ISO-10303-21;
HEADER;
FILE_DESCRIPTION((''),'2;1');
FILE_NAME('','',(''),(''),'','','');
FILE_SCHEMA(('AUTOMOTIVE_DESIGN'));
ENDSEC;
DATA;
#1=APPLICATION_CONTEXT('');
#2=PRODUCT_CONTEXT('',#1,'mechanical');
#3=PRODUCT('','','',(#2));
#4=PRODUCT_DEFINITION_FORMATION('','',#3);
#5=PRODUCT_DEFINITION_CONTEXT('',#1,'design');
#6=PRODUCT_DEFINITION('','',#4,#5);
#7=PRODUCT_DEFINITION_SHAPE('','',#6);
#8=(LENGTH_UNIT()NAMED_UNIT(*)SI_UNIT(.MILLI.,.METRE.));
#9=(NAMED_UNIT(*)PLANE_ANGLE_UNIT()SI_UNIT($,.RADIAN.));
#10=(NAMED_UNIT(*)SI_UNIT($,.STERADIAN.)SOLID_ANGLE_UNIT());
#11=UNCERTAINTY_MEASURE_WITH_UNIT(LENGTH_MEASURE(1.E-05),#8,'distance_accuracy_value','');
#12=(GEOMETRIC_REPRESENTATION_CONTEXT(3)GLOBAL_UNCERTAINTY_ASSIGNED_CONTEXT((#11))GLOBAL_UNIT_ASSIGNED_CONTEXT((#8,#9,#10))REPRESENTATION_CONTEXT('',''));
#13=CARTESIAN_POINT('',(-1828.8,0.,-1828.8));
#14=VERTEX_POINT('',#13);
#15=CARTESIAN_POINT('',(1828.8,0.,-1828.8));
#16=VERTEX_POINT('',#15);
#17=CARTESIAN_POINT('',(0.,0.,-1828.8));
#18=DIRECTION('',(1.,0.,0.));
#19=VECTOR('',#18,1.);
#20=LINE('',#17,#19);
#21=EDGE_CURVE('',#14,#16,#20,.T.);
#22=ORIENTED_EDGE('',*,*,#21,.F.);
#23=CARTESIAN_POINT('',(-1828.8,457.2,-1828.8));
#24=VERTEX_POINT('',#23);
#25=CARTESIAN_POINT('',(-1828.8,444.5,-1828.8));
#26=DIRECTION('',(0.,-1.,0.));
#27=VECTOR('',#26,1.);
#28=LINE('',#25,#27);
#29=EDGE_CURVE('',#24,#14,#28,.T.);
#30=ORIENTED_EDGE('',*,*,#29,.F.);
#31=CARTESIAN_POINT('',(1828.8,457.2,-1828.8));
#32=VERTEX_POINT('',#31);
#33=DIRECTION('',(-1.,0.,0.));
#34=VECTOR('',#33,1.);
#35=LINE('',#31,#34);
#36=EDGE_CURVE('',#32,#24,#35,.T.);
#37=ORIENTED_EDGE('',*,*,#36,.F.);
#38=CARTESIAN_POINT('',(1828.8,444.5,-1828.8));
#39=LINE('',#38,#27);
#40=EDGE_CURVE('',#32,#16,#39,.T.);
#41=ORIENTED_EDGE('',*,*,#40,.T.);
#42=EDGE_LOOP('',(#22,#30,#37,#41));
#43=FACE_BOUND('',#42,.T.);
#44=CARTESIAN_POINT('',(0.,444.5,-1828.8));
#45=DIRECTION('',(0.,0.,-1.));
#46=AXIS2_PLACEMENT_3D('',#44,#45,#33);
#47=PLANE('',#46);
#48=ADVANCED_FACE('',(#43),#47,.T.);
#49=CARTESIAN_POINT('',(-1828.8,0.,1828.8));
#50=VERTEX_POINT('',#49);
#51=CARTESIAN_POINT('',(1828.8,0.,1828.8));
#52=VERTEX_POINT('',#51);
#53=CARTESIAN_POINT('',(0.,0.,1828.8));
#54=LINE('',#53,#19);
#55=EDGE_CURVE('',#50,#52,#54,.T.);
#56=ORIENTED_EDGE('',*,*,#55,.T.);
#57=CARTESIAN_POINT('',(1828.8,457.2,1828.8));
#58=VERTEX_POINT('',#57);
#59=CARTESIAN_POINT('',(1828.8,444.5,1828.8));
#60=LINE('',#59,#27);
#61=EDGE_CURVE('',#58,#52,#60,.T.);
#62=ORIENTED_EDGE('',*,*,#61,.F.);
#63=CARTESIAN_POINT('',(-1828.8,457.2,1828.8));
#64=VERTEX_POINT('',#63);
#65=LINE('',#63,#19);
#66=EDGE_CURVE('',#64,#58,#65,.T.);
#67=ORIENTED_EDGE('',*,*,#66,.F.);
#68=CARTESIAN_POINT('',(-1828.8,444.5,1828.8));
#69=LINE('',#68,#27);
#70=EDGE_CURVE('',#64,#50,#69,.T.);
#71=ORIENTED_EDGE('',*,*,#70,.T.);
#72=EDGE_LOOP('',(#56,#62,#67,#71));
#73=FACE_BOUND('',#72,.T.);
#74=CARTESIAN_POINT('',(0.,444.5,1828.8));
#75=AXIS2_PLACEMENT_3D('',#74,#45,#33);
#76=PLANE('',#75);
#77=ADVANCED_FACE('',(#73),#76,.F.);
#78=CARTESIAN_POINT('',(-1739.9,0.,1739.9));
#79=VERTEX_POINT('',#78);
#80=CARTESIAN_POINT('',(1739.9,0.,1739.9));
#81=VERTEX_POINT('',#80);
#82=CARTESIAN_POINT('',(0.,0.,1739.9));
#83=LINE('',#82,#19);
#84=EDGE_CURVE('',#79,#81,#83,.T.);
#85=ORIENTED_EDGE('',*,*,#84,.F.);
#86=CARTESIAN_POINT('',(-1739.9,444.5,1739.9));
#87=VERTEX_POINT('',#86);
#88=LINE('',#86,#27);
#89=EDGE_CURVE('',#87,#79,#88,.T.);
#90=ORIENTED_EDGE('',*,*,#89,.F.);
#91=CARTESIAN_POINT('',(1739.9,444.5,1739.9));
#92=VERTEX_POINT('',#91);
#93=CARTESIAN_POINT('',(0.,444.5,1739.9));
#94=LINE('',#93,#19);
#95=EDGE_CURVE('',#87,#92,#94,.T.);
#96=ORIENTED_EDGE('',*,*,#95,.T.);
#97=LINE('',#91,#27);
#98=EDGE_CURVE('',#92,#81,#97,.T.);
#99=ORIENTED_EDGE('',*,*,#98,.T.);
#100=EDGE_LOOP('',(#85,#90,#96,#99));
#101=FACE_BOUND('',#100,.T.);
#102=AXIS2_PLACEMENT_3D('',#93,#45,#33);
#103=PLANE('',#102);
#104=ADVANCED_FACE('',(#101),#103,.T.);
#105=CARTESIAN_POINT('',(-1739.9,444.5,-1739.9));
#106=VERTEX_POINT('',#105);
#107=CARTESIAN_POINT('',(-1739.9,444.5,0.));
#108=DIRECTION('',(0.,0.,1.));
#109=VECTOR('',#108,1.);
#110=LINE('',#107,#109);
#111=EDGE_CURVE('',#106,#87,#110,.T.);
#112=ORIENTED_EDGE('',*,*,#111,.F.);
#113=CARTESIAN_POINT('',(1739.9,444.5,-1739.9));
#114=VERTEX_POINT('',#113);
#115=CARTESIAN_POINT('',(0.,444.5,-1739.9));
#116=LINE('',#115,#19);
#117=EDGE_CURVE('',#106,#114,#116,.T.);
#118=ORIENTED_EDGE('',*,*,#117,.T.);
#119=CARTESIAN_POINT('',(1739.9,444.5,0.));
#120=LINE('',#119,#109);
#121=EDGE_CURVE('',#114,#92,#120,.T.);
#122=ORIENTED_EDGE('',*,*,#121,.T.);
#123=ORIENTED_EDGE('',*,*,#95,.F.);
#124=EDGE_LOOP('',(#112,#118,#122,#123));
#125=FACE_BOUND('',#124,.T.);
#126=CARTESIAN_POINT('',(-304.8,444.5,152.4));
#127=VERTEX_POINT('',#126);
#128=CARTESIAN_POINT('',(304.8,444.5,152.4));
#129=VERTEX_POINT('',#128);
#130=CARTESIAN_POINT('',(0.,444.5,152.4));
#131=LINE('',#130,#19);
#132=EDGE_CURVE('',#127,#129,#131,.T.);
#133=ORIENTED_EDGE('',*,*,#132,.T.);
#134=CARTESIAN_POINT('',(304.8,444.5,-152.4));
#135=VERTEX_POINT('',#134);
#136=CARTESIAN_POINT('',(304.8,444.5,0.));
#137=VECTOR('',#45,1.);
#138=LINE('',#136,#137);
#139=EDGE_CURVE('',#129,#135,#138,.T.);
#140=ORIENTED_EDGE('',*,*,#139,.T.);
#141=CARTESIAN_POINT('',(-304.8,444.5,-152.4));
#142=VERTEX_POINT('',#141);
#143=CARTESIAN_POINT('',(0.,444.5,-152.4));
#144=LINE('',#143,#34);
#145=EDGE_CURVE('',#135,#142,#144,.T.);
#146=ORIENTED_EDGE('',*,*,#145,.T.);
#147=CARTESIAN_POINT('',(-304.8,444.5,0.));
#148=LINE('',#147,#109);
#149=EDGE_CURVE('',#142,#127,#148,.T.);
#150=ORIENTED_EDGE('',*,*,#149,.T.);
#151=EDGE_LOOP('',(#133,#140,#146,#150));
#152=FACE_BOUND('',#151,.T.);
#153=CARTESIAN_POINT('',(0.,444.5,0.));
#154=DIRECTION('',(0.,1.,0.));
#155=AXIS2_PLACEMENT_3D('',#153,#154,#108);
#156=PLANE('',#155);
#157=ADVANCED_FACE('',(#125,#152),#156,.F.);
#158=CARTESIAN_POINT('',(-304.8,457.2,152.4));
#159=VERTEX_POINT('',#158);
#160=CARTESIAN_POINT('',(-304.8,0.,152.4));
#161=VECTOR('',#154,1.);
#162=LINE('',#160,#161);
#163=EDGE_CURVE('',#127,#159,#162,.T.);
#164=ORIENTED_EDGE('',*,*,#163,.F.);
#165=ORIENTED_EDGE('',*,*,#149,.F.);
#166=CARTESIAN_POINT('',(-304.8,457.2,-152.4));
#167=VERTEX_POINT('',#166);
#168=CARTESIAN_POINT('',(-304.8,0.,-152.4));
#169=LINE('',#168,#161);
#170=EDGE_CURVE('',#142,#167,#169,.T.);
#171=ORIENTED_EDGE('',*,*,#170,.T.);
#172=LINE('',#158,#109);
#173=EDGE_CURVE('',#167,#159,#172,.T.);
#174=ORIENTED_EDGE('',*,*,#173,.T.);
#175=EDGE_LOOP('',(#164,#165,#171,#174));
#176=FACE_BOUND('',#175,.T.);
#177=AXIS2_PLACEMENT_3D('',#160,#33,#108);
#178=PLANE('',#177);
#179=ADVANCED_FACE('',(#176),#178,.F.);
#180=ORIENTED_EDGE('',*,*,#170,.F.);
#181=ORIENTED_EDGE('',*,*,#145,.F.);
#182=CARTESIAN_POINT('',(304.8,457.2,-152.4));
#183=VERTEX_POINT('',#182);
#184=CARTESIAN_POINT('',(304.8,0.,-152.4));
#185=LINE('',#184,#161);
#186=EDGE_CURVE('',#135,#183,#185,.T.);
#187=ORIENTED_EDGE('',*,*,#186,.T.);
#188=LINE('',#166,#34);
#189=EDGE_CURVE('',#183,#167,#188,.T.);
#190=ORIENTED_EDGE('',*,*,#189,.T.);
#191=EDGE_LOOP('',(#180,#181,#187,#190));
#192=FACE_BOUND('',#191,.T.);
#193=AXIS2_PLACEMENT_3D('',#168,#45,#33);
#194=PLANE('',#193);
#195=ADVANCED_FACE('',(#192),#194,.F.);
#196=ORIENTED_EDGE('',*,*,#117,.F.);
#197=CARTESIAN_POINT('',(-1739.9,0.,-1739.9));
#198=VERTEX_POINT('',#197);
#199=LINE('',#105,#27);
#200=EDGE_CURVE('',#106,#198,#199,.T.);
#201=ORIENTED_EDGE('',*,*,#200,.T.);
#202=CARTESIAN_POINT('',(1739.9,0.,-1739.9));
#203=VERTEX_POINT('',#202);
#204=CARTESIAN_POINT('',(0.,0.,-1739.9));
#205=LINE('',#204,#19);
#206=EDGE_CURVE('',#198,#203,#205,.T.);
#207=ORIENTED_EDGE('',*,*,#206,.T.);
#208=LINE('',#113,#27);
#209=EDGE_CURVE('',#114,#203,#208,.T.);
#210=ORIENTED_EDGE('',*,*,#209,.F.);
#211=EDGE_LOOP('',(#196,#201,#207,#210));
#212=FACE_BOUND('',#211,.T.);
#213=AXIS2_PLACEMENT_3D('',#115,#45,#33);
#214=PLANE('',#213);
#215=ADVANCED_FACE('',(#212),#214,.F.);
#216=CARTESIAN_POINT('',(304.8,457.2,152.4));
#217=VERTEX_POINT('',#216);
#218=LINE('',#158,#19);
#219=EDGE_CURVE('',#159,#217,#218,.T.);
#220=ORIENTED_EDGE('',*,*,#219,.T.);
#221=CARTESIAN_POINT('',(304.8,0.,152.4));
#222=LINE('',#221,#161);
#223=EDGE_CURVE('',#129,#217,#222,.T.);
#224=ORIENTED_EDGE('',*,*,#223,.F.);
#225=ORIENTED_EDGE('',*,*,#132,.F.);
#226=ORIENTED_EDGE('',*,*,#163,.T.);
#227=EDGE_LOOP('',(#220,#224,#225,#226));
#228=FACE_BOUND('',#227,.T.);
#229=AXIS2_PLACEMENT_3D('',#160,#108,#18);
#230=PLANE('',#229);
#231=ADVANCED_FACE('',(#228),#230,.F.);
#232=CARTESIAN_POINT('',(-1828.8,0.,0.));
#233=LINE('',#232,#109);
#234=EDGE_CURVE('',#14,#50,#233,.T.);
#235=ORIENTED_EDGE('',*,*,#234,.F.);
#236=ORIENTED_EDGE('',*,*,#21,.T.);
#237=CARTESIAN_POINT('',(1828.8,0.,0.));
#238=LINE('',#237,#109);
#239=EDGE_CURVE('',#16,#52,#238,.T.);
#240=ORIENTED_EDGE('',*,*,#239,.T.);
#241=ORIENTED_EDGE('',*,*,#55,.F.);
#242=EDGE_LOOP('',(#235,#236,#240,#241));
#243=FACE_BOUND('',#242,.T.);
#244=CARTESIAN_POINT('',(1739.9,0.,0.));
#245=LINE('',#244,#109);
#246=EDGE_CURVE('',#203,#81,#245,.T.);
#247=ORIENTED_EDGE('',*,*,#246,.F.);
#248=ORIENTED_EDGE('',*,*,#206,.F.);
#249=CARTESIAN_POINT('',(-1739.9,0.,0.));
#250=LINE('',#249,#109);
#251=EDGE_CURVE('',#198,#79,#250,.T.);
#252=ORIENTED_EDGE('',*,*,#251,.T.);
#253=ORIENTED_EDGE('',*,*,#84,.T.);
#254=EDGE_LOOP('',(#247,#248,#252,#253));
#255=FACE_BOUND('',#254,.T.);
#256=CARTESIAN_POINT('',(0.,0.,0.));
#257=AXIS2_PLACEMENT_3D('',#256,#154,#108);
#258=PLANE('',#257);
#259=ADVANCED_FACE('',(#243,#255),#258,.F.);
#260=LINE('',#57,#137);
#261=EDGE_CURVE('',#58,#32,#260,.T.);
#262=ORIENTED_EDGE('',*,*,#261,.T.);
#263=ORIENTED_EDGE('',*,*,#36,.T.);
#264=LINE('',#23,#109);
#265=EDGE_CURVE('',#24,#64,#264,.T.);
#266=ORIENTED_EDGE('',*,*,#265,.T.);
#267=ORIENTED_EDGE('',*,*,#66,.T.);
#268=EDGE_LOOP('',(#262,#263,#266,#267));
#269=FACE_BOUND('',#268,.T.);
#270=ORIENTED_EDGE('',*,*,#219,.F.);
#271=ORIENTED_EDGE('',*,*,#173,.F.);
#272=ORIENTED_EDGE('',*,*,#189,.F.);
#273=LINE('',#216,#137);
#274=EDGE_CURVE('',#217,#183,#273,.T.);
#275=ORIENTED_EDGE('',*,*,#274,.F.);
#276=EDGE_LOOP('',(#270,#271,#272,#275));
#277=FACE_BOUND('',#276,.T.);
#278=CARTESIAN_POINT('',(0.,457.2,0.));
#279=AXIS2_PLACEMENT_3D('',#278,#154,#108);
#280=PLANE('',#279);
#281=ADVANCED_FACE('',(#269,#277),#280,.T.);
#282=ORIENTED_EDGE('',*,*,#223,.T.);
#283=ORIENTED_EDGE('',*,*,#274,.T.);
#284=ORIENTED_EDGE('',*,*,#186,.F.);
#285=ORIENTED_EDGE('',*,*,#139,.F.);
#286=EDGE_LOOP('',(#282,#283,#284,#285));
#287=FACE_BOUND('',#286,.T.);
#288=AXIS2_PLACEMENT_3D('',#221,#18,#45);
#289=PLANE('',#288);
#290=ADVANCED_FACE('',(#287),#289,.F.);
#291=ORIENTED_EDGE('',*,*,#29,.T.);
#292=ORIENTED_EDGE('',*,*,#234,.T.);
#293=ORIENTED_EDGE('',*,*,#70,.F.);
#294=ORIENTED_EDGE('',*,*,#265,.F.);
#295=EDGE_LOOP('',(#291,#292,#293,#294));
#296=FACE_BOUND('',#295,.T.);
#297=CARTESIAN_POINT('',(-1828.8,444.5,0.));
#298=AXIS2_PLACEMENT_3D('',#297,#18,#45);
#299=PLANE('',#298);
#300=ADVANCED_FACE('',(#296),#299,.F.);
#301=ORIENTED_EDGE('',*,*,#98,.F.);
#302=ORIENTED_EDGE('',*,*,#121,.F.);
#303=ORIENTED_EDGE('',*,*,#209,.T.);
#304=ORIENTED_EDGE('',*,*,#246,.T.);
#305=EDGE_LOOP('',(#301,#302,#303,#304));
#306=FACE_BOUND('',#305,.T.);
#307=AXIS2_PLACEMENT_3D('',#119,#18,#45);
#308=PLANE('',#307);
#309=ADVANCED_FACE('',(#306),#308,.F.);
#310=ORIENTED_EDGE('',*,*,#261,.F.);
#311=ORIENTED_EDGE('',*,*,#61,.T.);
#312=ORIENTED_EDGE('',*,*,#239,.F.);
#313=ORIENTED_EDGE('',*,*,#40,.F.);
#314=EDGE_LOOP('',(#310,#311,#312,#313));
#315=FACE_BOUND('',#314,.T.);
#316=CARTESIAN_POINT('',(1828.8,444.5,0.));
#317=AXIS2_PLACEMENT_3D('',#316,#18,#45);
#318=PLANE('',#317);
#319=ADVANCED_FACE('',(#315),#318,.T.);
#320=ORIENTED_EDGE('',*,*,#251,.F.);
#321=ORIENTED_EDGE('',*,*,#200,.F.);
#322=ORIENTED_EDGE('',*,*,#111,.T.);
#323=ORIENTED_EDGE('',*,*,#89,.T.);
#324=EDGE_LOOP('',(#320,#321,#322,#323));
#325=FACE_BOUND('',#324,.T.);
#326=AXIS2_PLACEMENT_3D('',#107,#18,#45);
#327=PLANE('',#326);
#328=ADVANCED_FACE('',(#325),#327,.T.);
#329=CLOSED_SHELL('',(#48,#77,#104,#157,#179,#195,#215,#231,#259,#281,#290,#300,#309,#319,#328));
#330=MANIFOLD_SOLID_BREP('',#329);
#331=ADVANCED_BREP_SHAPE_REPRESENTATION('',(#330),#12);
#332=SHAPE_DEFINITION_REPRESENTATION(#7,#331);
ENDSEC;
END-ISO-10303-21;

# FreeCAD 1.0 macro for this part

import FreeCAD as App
import Part
import Sketcher
Q = App.Units.Quantity

doc = App.newDocument("Part")
body = doc.addObject("PartDesign::Body", "Body")

# Sketch on XZ plane
sketch1 = body.newObject("Sketcher::SketchObject", "Sketch")
sketch1.AttachmentSupport = (doc.getObject("XZ_Plane"), [""])
sketch1.MapMode = "FlatFace"
sketch1.addGeometry(Part.LineSegment(App.Vector(-1829, -1829, 0), App.Vector(-1829, 1829, 0)), False)
sketch1.addGeometry(Part.LineSegment(App.Vector(-1829, 1829, 0), App.Vector(1829, 1829, 0)), False)
sketch1.addGeometry(Part.LineSegment(App.Vector(1829, 1829, 0), App.Vector(1829, -1829, 0)), False)
sketch1.addGeometry(Part.LineSegment(App.Vector(1829, -1829, 0), App.Vector(-1829, -1829, 0)), False)
sketch1.addGeometry(Part.LineSegment(App.Vector(1740, 1740, 0), App.Vector(-1740, 1740, 0)), False)
sketch1.addGeometry(Part.LineSegment(App.Vector(-1740, 1740, 0), App.Vector(-1740, -1740, 0)), False)
sketch1.addGeometry(Part.LineSegment(App.Vector(-1740, -1740, 0), App.Vector(1740, -1740, 0)), False)
sketch1.addGeometry(Part.LineSegment(App.Vector(1740, -1740, 0), App.Vector(1740, 1740, 0)), False)
sketch1.addConstraint(Sketcher.Constraint("Coincident", 0, 2, 1, 1))
sketch1.addConstraint(Sketcher.Constraint("Coincident", 1, 2, 2, 1))
sketch1.addConstraint(Sketcher.Constraint("Coincident", 2, 2, 3, 1))
sketch1.addConstraint(Sketcher.Constraint("Coincident", 3, 2, 0, 1))
sketch1.addConstraint(Sketcher.Constraint("Coincident", 4, 2, 5, 1))
sketch1.addConstraint(Sketcher.Constraint("Coincident", 5, 2, 6, 1))
sketch1.addConstraint(Sketcher.Constraint("Coincident", 6, 2, 7, 1))
sketch1.addConstraint(Sketcher.Constraint("Coincident", 7, 2, 4, 1))
sketch1.addConstraint(Sketcher.Constraint("Vertical", 0))
sketch1.addConstraint(Sketcher.Constraint("Horizontal", 1))
sketch1.addConstraint(Sketcher.Constraint("Vertical", 2))
sketch1.addConstraint(Sketcher.Constraint("Horizontal", 3))
sketch1.addConstraint(Sketcher.Constraint("Horizontal", 4))
sketch1.addConstraint(Sketcher.Constraint("Vertical", 5))
sketch1.addConstraint(Sketcher.Constraint("Horizontal", 6))
sketch1.addConstraint(Sketcher.Constraint("Vertical", 7))
sketch1.addConstraint(Sketcher.Constraint("Symmetric", 0, 2, 2, 2, -1, 1))
sketch1.addConstraint(Sketcher.Constraint("Symmetric", 4, 2, 6, 2, -1, 1))
sketch1.addConstraint(Sketcher.Constraint("Equal", 3, 0))
sketch1.addConstraint(Sketcher.Constraint("Equal", 6, 5))
sketch1.addConstraint(Sketcher.Constraint("DistanceX", 1, 1, 1, 2, Q("144 in")))
sketch1.addConstraint(Sketcher.Constraint("DistanceX", 4, 2, 4, 1, Q("137 in")))
pad1 = body.newObject("PartDesign::Pad", "Pad")
pad1.Profile = sketch1
pad1.Length = Q("17.5 in")
pad1.Reversed = True

# Sketch on XZ plane
sketch2 = body.newObject("Sketcher::SketchObject", "Sketch001")
sketch2.AttachmentSupport = (doc.getObject("XZ_Plane"), [""])
sketch2.MapMode = "FlatFace"
sketch2.AttachmentOffset = App.Placement(App.Vector(0, 0, -17.5 * 25.4), App.Rotation())
sketch2.addGeometry(Part.LineSegment(App.Vector(-1829, -1829, 0), App.Vector(-1829, 1829, 0)), False)
sketch2.addGeometry(Part.LineSegment(App.Vector(-1829, 1829, 0), App.Vector(1829, 1829, 0)), False)
sketch2.addGeometry(Part.LineSegment(App.Vector(1829, 1829, 0), App.Vector(1829, -1829, 0)), False)
sketch2.addGeometry(Part.LineSegment(App.Vector(1829, -1829, 0), App.Vector(-1829, -1829, 0)), False)
sketch2.addConstraint(Sketcher.Constraint("Coincident", 0, 2, 1, 1))
sketch2.addConstraint(Sketcher.Constraint("Coincident", 1, 2, 2, 1))
sketch2.addConstraint(Sketcher.Constraint("Coincident", 2, 2, 3, 1))
sketch2.addConstraint(Sketcher.Constraint("Coincident", 3, 2, 0, 1))
sketch2.addConstraint(Sketcher.Constraint("Vertical", 0))
sketch2.addConstraint(Sketcher.Constraint("Horizontal", 1))
sketch2.addConstraint(Sketcher.Constraint("Vertical", 2))
sketch2.addConstraint(Sketcher.Constraint("Horizontal", 3))
sketch2.addConstraint(Sketcher.Constraint("Symmetric", 0, 2, 2, 2, -1, 1))
sketch2.addConstraint(Sketcher.Constraint("Equal", 3, 0))
sketch2.addConstraint(Sketcher.Constraint("DistanceX", 1, 1, 1, 2, Q("144 in")))
pad2 = body.newObject("PartDesign::Pad", "Pad001")
pad2.Profile = sketch2
pad2.Length = Q("0.5 in")
pad2.Reversed = True

# Sketch on XZ plane
sketch3 = body.newObject("Sketcher::SketchObject", "Sketch002")
sketch3.AttachmentSupport = (doc.getObject("XZ_Plane"), [""])
sketch3.MapMode = "FlatFace"
sketch3.AttachmentOffset = App.Placement(App.Vector(0, 0, -18 * 25.4), App.Rotation())
sketch3.addGeometry(Part.LineSegment(App.Vector(-305, -152, 0), App.Vector(-305, 152, 0)), False)
sketch3.addGeometry(Part.LineSegment(App.Vector(-305, 152, 0), App.Vector(305, 152, 0)), False)
sketch3.addGeometry(Part.LineSegment(App.Vector(305, 152, 0), App.Vector(305, -152, 0)), False)
sketch3.addGeometry(Part.LineSegment(App.Vector(305, -152, 0), App.Vector(-305, -152, 0)), False)
sketch3.addConstraint(Sketcher.Constraint("Coincident", 0, 2, 1, 1))
sketch3.addConstraint(Sketcher.Constraint("Coincident", 1, 2, 2, 1))
sketch3.addConstraint(Sketcher.Constraint("Coincident", 2, 2, 3, 1))
sketch3.addConstraint(Sketcher.Constraint("Coincident", 3, 2, 0, 1))
sketch3.addConstraint(Sketcher.Constraint("Vertical", 0))
sketch3.addConstraint(Sketcher.Constraint("Horizontal", 1))
sketch3.addConstraint(Sketcher.Constraint("Vertical", 2))
sketch3.addConstraint(Sketcher.Constraint("Horizontal", 3))
sketch3.addConstraint(Sketcher.Constraint("Symmetric", 0, 2, 2, 2, -1, 1))
sketch3.addConstraint(Sketcher.Constraint("DistanceX", 1, 1, 1, 2, Q("24 in")))
sketch3.addConstraint(Sketcher.Constraint("DistanceY", 0, 1, 0, 2, Q("12 in")))
pocket1 = body.newObject("PartDesign::Pocket", "Pocket")
pocket1.Profile = sketch3
pocket1.Type = "ThroughAll"
pocket1.Reversed = True

doc.recompute()
